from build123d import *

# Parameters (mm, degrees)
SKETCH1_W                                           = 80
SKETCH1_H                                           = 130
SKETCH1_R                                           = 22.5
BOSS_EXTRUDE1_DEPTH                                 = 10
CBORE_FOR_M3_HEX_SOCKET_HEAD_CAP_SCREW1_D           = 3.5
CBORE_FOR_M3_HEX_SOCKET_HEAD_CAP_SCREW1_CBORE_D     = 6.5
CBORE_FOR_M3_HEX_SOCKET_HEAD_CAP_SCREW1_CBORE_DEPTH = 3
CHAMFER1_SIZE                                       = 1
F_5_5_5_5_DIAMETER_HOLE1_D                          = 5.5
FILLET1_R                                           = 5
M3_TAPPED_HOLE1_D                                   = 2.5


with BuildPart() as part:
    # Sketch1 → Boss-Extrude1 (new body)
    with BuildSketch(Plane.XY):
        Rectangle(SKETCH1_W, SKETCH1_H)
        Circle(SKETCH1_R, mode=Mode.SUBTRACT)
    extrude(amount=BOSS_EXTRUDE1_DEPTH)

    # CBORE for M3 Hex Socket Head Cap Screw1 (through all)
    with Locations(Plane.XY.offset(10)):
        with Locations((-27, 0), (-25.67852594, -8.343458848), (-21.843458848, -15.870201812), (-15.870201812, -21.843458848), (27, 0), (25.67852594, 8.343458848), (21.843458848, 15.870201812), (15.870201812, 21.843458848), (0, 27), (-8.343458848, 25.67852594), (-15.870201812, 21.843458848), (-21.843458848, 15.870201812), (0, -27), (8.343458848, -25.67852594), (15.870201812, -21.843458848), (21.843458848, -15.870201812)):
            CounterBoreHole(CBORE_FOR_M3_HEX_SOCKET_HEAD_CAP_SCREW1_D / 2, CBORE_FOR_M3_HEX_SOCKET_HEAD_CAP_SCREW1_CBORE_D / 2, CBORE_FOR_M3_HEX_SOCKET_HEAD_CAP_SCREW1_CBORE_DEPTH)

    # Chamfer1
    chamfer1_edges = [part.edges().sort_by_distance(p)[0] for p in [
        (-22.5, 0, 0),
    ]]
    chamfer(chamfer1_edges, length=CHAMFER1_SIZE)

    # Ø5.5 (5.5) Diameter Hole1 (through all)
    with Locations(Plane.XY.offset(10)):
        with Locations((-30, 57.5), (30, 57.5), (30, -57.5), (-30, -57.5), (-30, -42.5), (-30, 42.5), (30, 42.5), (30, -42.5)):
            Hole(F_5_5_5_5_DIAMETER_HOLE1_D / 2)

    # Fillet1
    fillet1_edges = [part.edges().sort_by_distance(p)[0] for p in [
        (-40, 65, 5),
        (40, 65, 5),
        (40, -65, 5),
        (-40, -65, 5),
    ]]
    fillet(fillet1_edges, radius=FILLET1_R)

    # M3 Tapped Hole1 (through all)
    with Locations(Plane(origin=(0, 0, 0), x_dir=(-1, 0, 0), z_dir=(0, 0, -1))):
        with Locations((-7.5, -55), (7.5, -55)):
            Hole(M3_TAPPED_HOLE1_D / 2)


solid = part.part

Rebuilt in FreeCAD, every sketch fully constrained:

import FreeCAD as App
import Part
import Sketcher

V = App.Vector
Q = App.Units.Quantity


def edges_at(feature, points):
    """Names of the edges that pass closest to the given points."""
    edges = feature.Shape.Edges
    near = lambda p: min(range(len(edges)), key=lambda i: edges[i].distToShape(Part.Vertex(*p))[0])
    return sorted({f"Edge{near(p) + 1}" for p in points})


def add_polygon(sketch, points):
    """Adds a closed chain of lines whose ends are joined by coincident constraints."""
    first, n = sketch.GeometryCount, len(points)
    for a, b in zip(points, points[1:] + points[:1]):
        sketch.addGeometry(Part.LineSegment(App.Vector(*a, 0), App.Vector(*b, 0)), False)
    for i in range(n):
        sketch.addConstraint(Sketcher.Constraint("Coincident", first + i, 2, first + (i + 1) % n, 1))

doc = App.newDocument("Part")
params = doc.addObject("Spreadsheet::Sheet", "Params")
for row, (alias, value) in enumerate([
    ("sketch1_diameter", "45 mm"),
    ("sketch1_width", "80 mm"),
    ("sketch1_height", "130 mm"),
    ("pad1_length", "10 mm"),
    ("sketch2_diameter", "3.5 mm"),
    ("hole_diameter", "3.5 mm"),
    ("hole_cbore_diameter", "6.5 mm"),
    ("hole_cbore_depth", "3 mm"),
    ("chamfer_size", "1 mm"),
    ("sketch3_diameter", "5.5 mm"),
    ("hole2_diameter", "5.5 mm"),
    ("fillet_radius", "5 mm"),
    ("sketch4_diameter", "2.5 mm"),
    ("hole3_diameter", "2.5 mm"),
], start=1):
    params.set(f"A{row}", alias)
    params.set(f"B{row}", "=" + value)
    params.setAlias(f"B{row}", alias)

body = doc.addObject("PartDesign::Body", "Body")

sketch1 = doc.addObject("Sketcher::SketchObject", "Sketch")
body.addObject(sketch1)
sketch1.AttachmentSupport = (doc.XY_Plane, [""])
sketch1.MapMode = "FlatFace"
add_polygon(sketch1, [(-40, 65), (-40, -65), (40, -65), (40, 65)])
sketch1.addGeometry(Part.Circle(V(0, 0, 0), V(0, 0, 1), 22), False)
sketch1.addConstraint(Sketcher.Constraint("Vertical", 0))
sketch1.addConstraint(Sketcher.Constraint("Horizontal", 1))
sketch1.addConstraint(Sketcher.Constraint("Vertical", 2))
sketch1.addConstraint(Sketcher.Constraint("Horizontal", 3))
sketch1.addConstraint(Sketcher.Constraint("Coincident", 4, 3, -1, 1))
sketch1.addConstraint(Sketcher.Constraint("Symmetric", 0, 2, 2, 2, -1, 1))
sketch1.addConstraint(Sketcher.Constraint("Diameter", 4, Q("45 mm")))
sketch1.addConstraint(Sketcher.Constraint("DistanceX", 1, 1, 1, 2, Q("80 mm")))
sketch1.addConstraint(Sketcher.Constraint("DistanceY", 0, 2, 0, 1, Q("130 mm")))
sketch1.setExpression("Constraints[10]", "Params.sketch1_diameter")
sketch1.setExpression("Constraints[11]", "Params.sketch1_width")
sketch1.setExpression("Constraints[12]", "Params.sketch1_height")
pad1 = doc.addObject("PartDesign::Pad", "Pad")
body.addObject(pad1)
pad1.Profile = sketch1
pad1.setExpression("Length", "Params.pad1_length")

sketch2 = doc.addObject("Sketcher::SketchObject", "Sketch001")
body.addObject(sketch2)
sketch2.AttachmentSupport = (doc.XY_Plane, [""])
sketch2.MapMode = "FlatFace"
sketch2.AttachmentOffset = App.Placement(V(0, 0, 10), App.Rotation())
sketch2.addGeometry(Part.Circle(V(-27, 0, 0), V(0, 0, 1), 1.8), False)
sketch2.addGeometry(Part.Circle(V(-25.7, -8.3, 0), V(0, 0, 1), 1.8), False)
sketch2.addGeometry(Part.Circle(V(-21.8, -15.9, 0), V(0, 0, 1), 1.8), False)
sketch2.addGeometry(Part.Circle(V(-15.9, -21.8, 0), V(0, 0, 1), 1.8), False)
sketch2.addGeometry(Part.Circle(V(27, 0, 0), V(0, 0, 1), 1.8), False)
sketch2.addGeometry(Part.Circle(V(25.7, 8.3, 0), V(0, 0, 1), 1.8), False)
sketch2.addGeometry(Part.Circle(V(21.8, 15.9, 0), V(0, 0, 1), 1.8), False)
sketch2.addGeometry(Part.Circle(V(15.9, 21.8, 0), V(0, 0, 1), 1.8), False)
sketch2.addGeometry(Part.Circle(V(0, 27, 0), V(0, 0, 1), 1.8), False)
sketch2.addGeometry(Part.Circle(V(-8.3, 25.7, 0), V(0, 0, 1), 1.8), False)
sketch2.addGeometry(Part.Circle(V(-15.9, 21.8, 0), V(0, 0, 1), 1.8), False)
sketch2.addGeometry(Part.Circle(V(-21.8, 15.9, 0), V(0, 0, 1), 1.8), False)
sketch2.addGeometry(Part.Circle(V(0, -27, 0), V(0, 0, 1), 1.8), False)
sketch2.addGeometry(Part.Circle(V(8.3, -25.7, 0), V(0, 0, 1), 1.8), False)
sketch2.addGeometry(Part.Circle(V(15.9, -21.8, 0), V(0, 0, 1), 1.8), False)
sketch2.addGeometry(Part.Circle(V(21.8, -15.9, 0), V(0, 0, 1), 1.8), False)
sketch2.addConstraint(Sketcher.Constraint("Equal", 0, 1))
sketch2.addConstraint(Sketcher.Constraint("Equal", 1, 2))
sketch2.addConstraint(Sketcher.Constraint("Equal", 2, 3))
sketch2.addConstraint(Sketcher.Constraint("Equal", 3, 4))
sketch2.addConstraint(Sketcher.Constraint("Equal", 4, 5))
sketch2.addConstraint(Sketcher.Constraint("Equal", 5, 6))
sketch2.addConstraint(Sketcher.Constraint("Equal", 6, 7))
sketch2.addConstraint(Sketcher.Constraint("Equal", 7, 8))
sketch2.addConstraint(Sketcher.Constraint("Equal", 8, 9))
sketch2.addConstraint(Sketcher.Constraint("Equal", 9, 10))
sketch2.addConstraint(Sketcher.Constraint("Equal", 10, 11))
sketch2.addConstraint(Sketcher.Constraint("Equal", 11, 12))
sketch2.addConstraint(Sketcher.Constraint("Equal", 12, 13))
sketch2.addConstraint(Sketcher.Constraint("Equal", 13, 14))
sketch2.addConstraint(Sketcher.Constraint("Equal", 14, 15))
sketch2.addConstraint(Sketcher.Constraint("Symmetric", 0, 3, 4, 3, -1, 1))
sketch2.addConstraint(Sketcher.Constraint("Symmetric", 1, 3, 5, 3, -1, 1))
sketch2.addConstraint(Sketcher.Constraint("Symmetric", 2, 3, 6, 3, -1, 1))
sketch2.addConstraint(Sketcher.Constraint("Symmetric", 3, 3, 7, 3, -1, 1))
sketch2.addConstraint(Sketcher.Constraint("Symmetric", 8, 3, 12, 3, -1, 1))
sketch2.addConstraint(Sketcher.Constraint("Symmetric", 9, 3, 13, 3, -1, 1))
sketch2.addConstraint(Sketcher.Constraint("Symmetric", 10, 3, 14, 3, -1, 1))
sketch2.addConstraint(Sketcher.Constraint("Symmetric", 11, 3, 15, 3, -1, 1))
sketch2.addConstraint(Sketcher.Constraint("Symmetric", 7, 3, 10, 3, -2))
sketch2.addConstraint(Sketcher.Constraint("Symmetric", 6, 3, 11, 3, -2))
sketch2.addConstraint(Sketcher.Constraint("PointOnObject", 0, 3, -1))
sketch2.addConstraint(Sketcher.Constraint("PointOnObject", 8, 3, -2))
sketch2.addConstraint(Sketcher.Constraint("Diameter", 0, Q("3.5 mm")))
sketch2.addConstraint(Sketcher.Constraint("DistanceX", 0, 3, -1, 1, Q("27 mm")))
sketch2.addConstraint(Sketcher.Constraint("DistanceY", -1, 1, 8, 3, Q("27 mm")))
sketch2.addConstraint(Sketcher.Constraint("DistanceY", 3, 3, 1, 3, Q("13.5 mm")))
sketch2.addConstraint(Sketcher.Constraint("DistanceX", 11, 3, 9, 3, Q("13.5 mm")))
sketch2.addConstraint(Sketcher.Constraint("DistanceY", 2, 3, -1, 1, Q("15.870202 mm")))
sketch2.addConstraint(Sketcher.Constraint("DistanceX", 3, 3, -1, 1, Q("15.870202 mm")))
sketch2.addConstraint(Sketcher.Constraint("DistanceY", 1, 3, -1, 1, Q("8.343459 mm")))
sketch2.addConstraint(Sketcher.Constraint("DistanceX", 2, 3, -1, 1, Q("21.843459 mm")))
sketch2.addConstraint(Sketcher.Constraint("DistanceX", 1, 3, 5, 3, Q("51.357052 mm")))
sketch2.addConstraint(Sketcher.Constraint("DistanceY", -1, 1, 9, 3, Q("25.678526 mm")))
sketch2.setExpression("Constraints[27]", "Params.sketch2_diameter")
doc.recompute()
hole = doc.addObject("PartDesign::Hole", "Hole")
body.addObject(hole)
hole.Profile = sketch2
hole.ThreadType = "None"
hole.setExpression("Diameter", "Params.hole_diameter")
hole.DepthType = "ThroughAll"
hole.HoleCutType = "Counterbore"
hole.setExpression("HoleCutDiameter", "Params.hole_cbore_diameter")
hole.setExpression("HoleCutDepth", "Params.hole_cbore_depth")
doc.recompute()

chamfer = doc.addObject("PartDesign::Chamfer", "Chamfer")
body.addObject(chamfer)
chamfer.Base = (hole, edges_at(hole, [(-22.5, 0, 0)]))
chamfer.setExpression("Size", "Params.chamfer_size")

sketch3 = doc.addObject("Sketcher::SketchObject", "Sketch002")
body.addObject(sketch3)
sketch3.AttachmentSupport = (doc.XY_Plane, [""])
sketch3.MapMode = "FlatFace"
sketch3.AttachmentOffset = App.Placement(V(0, 0, 10), App.Rotation())
sketch3.addGeometry(Part.Circle(V(-30, 57.5, 0), V(0, 0, 1), 2.8), False)
sketch3.addGeometry(Part.Circle(V(30, 57.5, 0), V(0, 0, 1), 2.8), False)
sketch3.addGeometry(Part.Circle(V(30, -57.5, 0), V(0, 0, 1), 2.8), False)
sketch3.addGeometry(Part.Circle(V(-30, -57.5, 0), V(0, 0, 1), 2.8), False)
sketch3.addGeometry(Part.Circle(V(-30, -42.5, 0), V(0, 0, 1), 2.8), False)
sketch3.addGeometry(Part.Circle(V(-30, 42.5, 0), V(0, 0, 1), 2.8), False)
sketch3.addGeometry(Part.Circle(V(30, 42.5, 0), V(0, 0, 1), 2.8), False)
sketch3.addGeometry(Part.Circle(V(30, -42.5, 0), V(0, 0, 1), 2.8), False)
sketch3.addConstraint(Sketcher.Constraint("Equal", 0, 1))
sketch3.addConstraint(Sketcher.Constraint("Equal", 1, 2))
sketch3.addConstraint(Sketcher.Constraint("Equal", 2, 3))
sketch3.addConstraint(Sketcher.Constraint("Equal", 3, 4))
sketch3.addConstraint(Sketcher.Constraint("Equal", 4, 5))
sketch3.addConstraint(Sketcher.Constraint("Equal", 5, 6))
sketch3.addConstraint(Sketcher.Constraint("Equal", 6, 7))
sketch3.addConstraint(Sketcher.Constraint("Symmetric", 0, 3, 2, 3, -1, 1))
sketch3.addConstraint(Sketcher.Constraint("Symmetric", 1, 3, 3, 3, -1, 1))
sketch3.addConstraint(Sketcher.Constraint("Symmetric", 4, 3, 6, 3, -1, 1))
sketch3.addConstraint(Sketcher.Constraint("Symmetric", 5, 3, 7, 3, -1, 1))
sketch3.addConstraint(Sketcher.Constraint("Symmetric", 0, 3, 1, 3, -2))
sketch3.addConstraint(Sketcher.Constraint("Symmetric", 5, 3, 6, 3, -2))
sketch3.addConstraint(Sketcher.Constraint("Vertical", 3, 3, 4, 3))
sketch3.addConstraint(Sketcher.Constraint("Diameter", 0, Q("5.5 mm")))
sketch3.addConstraint(Sketcher.Constraint("DistanceX", 0, 3, -1, 1, Q("30 mm")))
sketch3.addConstraint(Sketcher.Constraint("DistanceY", 2, 3, 1, 3, Q("115 mm")))
sketch3.addConstraint(Sketcher.Constraint("DistanceY", 3, 3, 4, 3, Q("15 mm")))
sketch3.setExpression("Constraints[14]", "Params.sketch3_diameter")
doc.recompute()
hole2 = doc.addObject("PartDesign::Hole", "Hole001")
body.addObject(hole2)
hole2.Profile = sketch3
hole2.ThreadType = "None"
hole2.setExpression("Diameter", "Params.hole2_diameter")
hole2.DepthType = "ThroughAll"
doc.recompute()

fillet = doc.addObject("PartDesign::Fillet", "Fillet")
body.addObject(fillet)
fillet.Base = (hole2, edges_at(hole2, [
    (-40, 65, 5),
    (40, 65, 5),
    (40, -65, 5),
    (-40, -65, 5),
]))
fillet.setExpression("Radius", "Params.fillet_radius")

sketch4 = doc.addObject("Sketcher::SketchObject", "Sketch003")
body.addObject(sketch4)
sketch4.AttachmentSupport = (doc.XY_Plane, [""])
sketch4.MapMode = "FlatFace"
sketch4.addGeometry(Part.Circle(V(7.5, -55, 0), V(0, 0, 1), 1.2), False)
sketch4.addGeometry(Part.Circle(V(-7.5, -55, 0), V(0, 0, 1), 1.2), False)
sketch4.addConstraint(Sketcher.Constraint("Equal", 0, 1))
sketch4.addConstraint(Sketcher.Constraint("Symmetric", 0, 3, 1, 3, -2))
sketch4.addConstraint(Sketcher.Constraint("Diameter", 0, Q("2.5 mm")))
sketch4.addConstraint(Sketcher.Constraint("DistanceY", 0, 3, -1, 1, Q("55 mm")))
sketch4.addConstraint(Sketcher.Constraint("DistanceX", 1, 3, 0, 3, Q("15 mm")))
sketch4.setExpression("Constraints[2]", "Params.sketch4_diameter")
doc.recompute()
hole3 = doc.addObject("PartDesign::Hole", "Hole002")
body.addObject(hole3)
hole3.Profile = sketch4
hole3.ThreadType = "None"
hole3.setExpression("Diameter", "Params.hole3_diameter")
hole3.DepthType = "ThroughAll"
hole3.Reversed = True

doc.recompute()
